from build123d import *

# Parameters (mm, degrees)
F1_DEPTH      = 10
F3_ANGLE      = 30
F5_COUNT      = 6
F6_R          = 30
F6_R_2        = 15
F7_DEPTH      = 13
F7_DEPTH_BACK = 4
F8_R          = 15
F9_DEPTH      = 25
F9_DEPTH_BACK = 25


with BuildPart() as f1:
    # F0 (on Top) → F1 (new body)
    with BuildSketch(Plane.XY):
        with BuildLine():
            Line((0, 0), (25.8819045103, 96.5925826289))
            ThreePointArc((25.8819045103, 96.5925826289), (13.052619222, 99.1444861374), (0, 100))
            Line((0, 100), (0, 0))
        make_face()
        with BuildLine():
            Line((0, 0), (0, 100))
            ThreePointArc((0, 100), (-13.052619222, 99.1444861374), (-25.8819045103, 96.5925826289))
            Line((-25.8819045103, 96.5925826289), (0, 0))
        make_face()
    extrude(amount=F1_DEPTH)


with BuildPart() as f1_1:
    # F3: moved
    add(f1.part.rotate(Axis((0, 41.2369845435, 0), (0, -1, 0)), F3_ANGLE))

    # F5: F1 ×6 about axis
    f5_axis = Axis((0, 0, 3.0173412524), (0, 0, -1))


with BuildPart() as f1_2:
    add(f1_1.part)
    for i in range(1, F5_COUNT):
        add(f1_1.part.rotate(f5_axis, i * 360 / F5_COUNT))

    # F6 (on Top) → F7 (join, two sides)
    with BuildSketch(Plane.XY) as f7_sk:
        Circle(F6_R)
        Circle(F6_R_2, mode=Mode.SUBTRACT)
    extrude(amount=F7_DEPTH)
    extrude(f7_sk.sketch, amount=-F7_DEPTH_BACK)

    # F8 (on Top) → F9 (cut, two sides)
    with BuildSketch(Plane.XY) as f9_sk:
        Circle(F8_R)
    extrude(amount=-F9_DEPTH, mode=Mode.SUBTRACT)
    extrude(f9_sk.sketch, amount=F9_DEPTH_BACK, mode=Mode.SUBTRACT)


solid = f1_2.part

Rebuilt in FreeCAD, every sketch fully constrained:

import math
import FreeCAD as App
import Part
import Sketcher

V = App.Vector
Q = App.Units.Quantity

doc = App.newDocument("Part")
body = doc.addObject("PartDesign::Body", "Body")

# Sketch on XY plane
sketch1 = body.newObject("Sketcher::SketchObject", "Sketch")
sketch1.AttachmentSupport = (doc.getObject("XY_Plane"), [""])
sketch1.MapMode = "FlatFace"
sketch1.addGeometry([
    Part.LineSegment(V(0, 0, 0), V(26, 97, 0)),
    Part.ArcOfCircle(Part.Circle(V(0, 0, 0), V(0, 0, 1), 100), math.radians(75), math.radians(90)),
    Part.ArcOfCircle(Part.Circle(V(0, 0, 0), V(0, 0, 1), 100), math.radians(90), math.radians(105)),
    Part.LineSegment(V(-26, 97, 0), V(0, 0, 0)),
], False)
sketch1.addConstraint([
    Sketcher.Constraint("Coincident", 0, 2, 1, 1),
    Sketcher.Constraint("Tangent", 1, 2, 2, 1),
    Sketcher.Constraint("Coincident", 2, 2, 3, 1),
    Sketcher.Constraint("Coincident", 3, 2, 0, 1),
    Sketcher.Constraint("Coincident", 1, 3, -1, 1),
    Sketcher.Constraint("Coincident", 3, 2, -1, 1),
    Sketcher.Constraint("Equal", 1, 2),
    Sketcher.Constraint("PointOnObject", 1, 2, -2),
    Sketcher.Constraint("Horizontal", 0, 2, 2, 2),
    Sketcher.Constraint("Radius", 1, 100.0),
    Sketcher.Constraint("Angle", 0, Q("75 deg")),
])
pad1 = body.newObject("PartDesign::Pad", "Pad")
pad1.Profile = sketch1
pad1.Length = 10
body2 = doc.addObject("PartDesign::Body", "Body001")
doc.recompute()

body.Placement = App.Placement(V(0, 0, 0), App.Rotation(V(0, -1, 0), 30))
boolean = body2.newObject("PartDesign::Boolean", "Boolean")
boolean.Type = "Fuse"
boolean.addObjects([body])
body3 = doc.addObject("PartDesign::Body", "Body002")
body3.AllowCompound = True
doc.recompute()

body3.BaseFeature = body2
doc.recompute()

body4 = doc.addObject("PartDesign::Body", "Body003")
body4.BaseFeature = body2
body4.Placement = App.Placement(V(0, 0, 0), App.Rotation(V(0, 0, -1), 60))
boolean2 = body3.newObject("PartDesign::Boolean", "Boolean001")
boolean2.Type = "Fuse"
boolean2.addObjects([body4])
doc.recompute()

body5 = doc.addObject("PartDesign::Body", "Body004")
body5.BaseFeature = body2
body5.Placement = App.Placement(V(0, 0, 0), App.Rotation(V(0, 0, -1), 120))
boolean3 = body3.newObject("PartDesign::Boolean", "Boolean002")
boolean3.Type = "Fuse"
boolean3.addObjects([body5])
doc.recompute()

body6 = doc.addObject("PartDesign::Body", "Body005")
body6.BaseFeature = body2
body6.Placement = App.Placement(V(0, 0, 0), App.Rotation(V(0, 0, -1), 180))
boolean4 = body3.newObject("PartDesign::Boolean", "Boolean003")
boolean4.Type = "Fuse"
boolean4.addObjects([body6])
doc.recompute()

body7 = doc.addObject("PartDesign::Body", "Body006")
body7.BaseFeature = body2
body7.Placement = App.Placement(V(0, 0, 0), App.Rotation(V(0, 0, -1), 240))
boolean5 = body3.newObject("PartDesign::Boolean", "Boolean004")
boolean5.Type = "Fuse"
boolean5.addObjects([body7])
doc.recompute()

body2.Placement = App.Placement(V(0, 0, 0), App.Rotation(V(0, 0, -1), 300))
boolean6 = body3.newObject("PartDesign::Boolean", "Boolean005")
boolean6.Type = "Fuse"
boolean6.addObjects([body2])

# Sketch on XY plane
sketch2 = body3.newObject("Sketcher::SketchObject", "Sketch001")
sketch2.AttachmentSupport = (doc.getObject("XY_Plane002"), [""])
sketch2.MapMode = "FlatFace"
sketch2.addGeometry([
    Part.Circle(V(0, 0, 0), V(0, 0, 1), 30),
    Part.Circle(V(0, 0, 0), V(0, 0, 1), 15),
], False)
sketch2.addConstraint([
    Sketcher.Constraint("Coincident", 0, 3, -1, 1),
    Sketcher.Constraint("Coincident", 1, 3, -1, 1),
    Sketcher.Constraint("Diameter", 0, 60.0),
    Sketcher.Constraint("Diameter", 1, 30.0),
])
pad2 = body3.newObject("PartDesign::Pad", "Pad001")
pad2.Profile = sketch2
pad2.Type = "TwoLengths"
pad2.Length = 13
pad2.Length2 = 4

# Sketch on XY plane
sketch3 = body3.newObject("Sketcher::SketchObject", "Sketch002")
sketch3.AttachmentSupport = (doc.getObject("XY_Plane002"), [""])
sketch3.MapMode = "FlatFace"
sketch3.addGeometry(Part.Circle(V(0, 0, 0), V(0, 0, 1), 15), False)
sketch3.addConstraint([
    Sketcher.Constraint("Coincident", 0, 3, -1, 1),
    Sketcher.Constraint("Diameter", 0, 30.0),
])
pocket1 = body3.newObject("PartDesign::Pocket", "Pocket")
pocket1.Profile = sketch3
pocket1.Type = "ThroughAll"
pocket1.Midplane = True

doc.recompute()
